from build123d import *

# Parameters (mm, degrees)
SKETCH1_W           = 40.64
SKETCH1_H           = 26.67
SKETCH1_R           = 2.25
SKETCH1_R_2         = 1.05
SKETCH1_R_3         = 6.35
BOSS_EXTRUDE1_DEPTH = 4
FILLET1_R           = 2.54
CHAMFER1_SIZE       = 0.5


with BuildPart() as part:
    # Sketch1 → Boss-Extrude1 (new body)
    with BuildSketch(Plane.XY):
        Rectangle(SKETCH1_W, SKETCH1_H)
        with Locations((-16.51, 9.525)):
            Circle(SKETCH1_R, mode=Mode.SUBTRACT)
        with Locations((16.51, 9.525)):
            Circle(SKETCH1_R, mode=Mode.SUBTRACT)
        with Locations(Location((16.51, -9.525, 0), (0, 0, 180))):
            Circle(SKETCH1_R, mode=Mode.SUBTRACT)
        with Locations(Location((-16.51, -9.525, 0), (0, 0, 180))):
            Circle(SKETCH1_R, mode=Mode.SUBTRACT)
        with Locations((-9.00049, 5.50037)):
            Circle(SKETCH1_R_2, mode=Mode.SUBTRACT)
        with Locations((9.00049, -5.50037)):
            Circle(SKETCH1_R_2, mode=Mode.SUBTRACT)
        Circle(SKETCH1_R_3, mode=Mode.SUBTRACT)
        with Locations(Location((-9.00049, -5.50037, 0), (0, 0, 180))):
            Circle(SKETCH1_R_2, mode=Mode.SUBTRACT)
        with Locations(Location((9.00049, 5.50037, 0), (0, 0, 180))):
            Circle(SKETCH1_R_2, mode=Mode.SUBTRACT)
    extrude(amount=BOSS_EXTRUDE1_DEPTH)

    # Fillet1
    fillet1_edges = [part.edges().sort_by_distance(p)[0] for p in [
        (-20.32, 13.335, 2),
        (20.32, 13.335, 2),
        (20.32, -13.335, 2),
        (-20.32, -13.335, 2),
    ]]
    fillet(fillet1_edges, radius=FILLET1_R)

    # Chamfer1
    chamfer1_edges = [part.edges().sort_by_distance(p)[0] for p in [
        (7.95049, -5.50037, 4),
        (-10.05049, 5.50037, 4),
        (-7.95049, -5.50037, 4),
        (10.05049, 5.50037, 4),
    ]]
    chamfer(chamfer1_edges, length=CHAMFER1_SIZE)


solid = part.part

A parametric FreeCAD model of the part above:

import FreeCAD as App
import Part
import Sketcher
Q = App.Units.Quantity


def edges_at(feature, points):
    """Names of the edges that pass closest to the given points."""
    edges = feature.Shape.Edges
    near = lambda p: min(range(len(edges)), key=lambda i: edges[i].distToShape(Part.Vertex(*p))[0])
    return sorted({f"Edge{near(p) + 1}" for p in points})


def add_polygon(sketch, points):
    """Adds a closed chain of lines whose ends are joined by coincident constraints."""
    first, n = sketch.GeometryCount, len(points)
    for a, b in zip(points, points[1:] + points[:1]):
        sketch.addGeometry(Part.LineSegment(App.Vector(*a, 0), App.Vector(*b, 0)), False)
    for i in range(n):
        sketch.addConstraint(Sketcher.Constraint("Coincident", first + i, 2, first + (i + 1) % n, 1))

doc = App.newDocument("Part")
body = doc.addObject("PartDesign::Body", "Body")

# Sketch on XY plane
sketch1 = body.newObject("Sketcher::SketchObject", "Sketch")
sketch1.AttachmentSupport = (doc.getObject("XY_Plane"), [""])
sketch1.MapMode = "FlatFace"
add_polygon(sketch1, [(-20.3, 13.3), (-20.3, -13.3), (20.3, -13.3), (20.3, 13.3)])  # lines 0-3
sketch1.addGeometry(Part.Circle(App.Vector(-16.5, -9.5, 0), App.Vector(0, 0, 1), 2.2), False)  # 4
sketch1.addGeometry(Part.Circle(App.Vector(-9, -5.5, 0), App.Vector(0, 0, 1), 1.1), False)  # 5
sketch1.addGeometry(Part.Circle(App.Vector(16.5, -9.5, 0), App.Vector(0, 0, 1), 2.2), False)  # 6
sketch1.addGeometry(Part.Circle(App.Vector(9, -5.5, 0), App.Vector(0, 0, 1), 1.1), False)  # 7
sketch1.addGeometry(Part.Circle(App.Vector(-9, 5.5, 0), App.Vector(0, 0, 1), 1.1), False)  # 8
sketch1.addGeometry(Part.Circle(App.Vector(-16.5, 9.5, 0), App.Vector(0, 0, 1), 2.2), False)  # 9
sketch1.addGeometry(Part.Circle(App.Vector(0, 0, 0), App.Vector(0, 0, 1), 6.3), False)  # 10
sketch1.addGeometry(Part.Circle(App.Vector(9, 5.5, 0), App.Vector(0, 0, 1), 1.1), False)  # 11
sketch1.addGeometry(Part.Circle(App.Vector(16.5, 9.5, 0), App.Vector(0, 0, 1), 2.2), False)  # 12
sketch1.addConstraint(Sketcher.Constraint("Vertical", 0))
sketch1.addConstraint(Sketcher.Constraint("Horizontal", 1))
sketch1.addConstraint(Sketcher.Constraint("Vertical", 2))
sketch1.addConstraint(Sketcher.Constraint("Horizontal", 3))
sketch1.addConstraint(Sketcher.Constraint("Coincident", 10, 3, -1, 1))
sketch1.addConstraint(Sketcher.Constraint("Equal", 4, 6))
sketch1.addConstraint(Sketcher.Constraint("Equal", 5, 7))
sketch1.addConstraint(Sketcher.Constraint("Equal", 7, 8))
sketch1.addConstraint(Sketcher.Constraint("Equal", 6, 9))
sketch1.addConstraint(Sketcher.Constraint("Equal", 8, 11))
sketch1.addConstraint(Sketcher.Constraint("Equal", 9, 12))
sketch1.addConstraint(Sketcher.Constraint("Symmetric", 7, 3, 8, 3, -1, 1))
sketch1.addConstraint(Sketcher.Constraint("Symmetric", 6, 3, 9, 3, -1, 1))
sketch1.addConstraint(Sketcher.Constraint("Symmetric", 5, 3, 11, 3, -1, 1))
sketch1.addConstraint(Sketcher.Constraint("Symmetric", 4, 3, 12, 3, -1, 1))
sketch1.addConstraint(Sketcher.Constraint("Symmetric", 0, 2, 2, 2, -1, 1))
sketch1.addConstraint(Sketcher.Constraint("Symmetric", 4, 3, 6, 3, -2))
sketch1.addConstraint(Sketcher.Constraint("Symmetric", 5, 3, 7, 3, -2))
sketch1.addConstraint(Sketcher.Constraint("Diameter", 4, Q("4.5 mm")))
sketch1.addConstraint(Sketcher.Constraint("Diameter", 5, Q("2.1 mm")))
sketch1.addConstraint(Sketcher.Constraint("Diameter", 10, Q("12.7 mm")))
sketch1.addConstraint(Sketcher.Constraint("DistanceX", 1, 1, 1, 2, Q("40.64 mm")))
sketch1.addConstraint(Sketcher.Constraint("DistanceY", 0, 2, 0, 1, Q("26.67 mm")))
sketch1.addConstraint(Sketcher.Constraint("DistanceX", 4, 3, -1, 1, Q("16.51 mm")))
sketch1.addConstraint(Sketcher.Constraint("DistanceY", 4, 3, 9, 3, Q("19.05 mm")))
sketch1.addConstraint(Sketcher.Constraint("DistanceX", 5, 3, -1, 1, Q("9.00049 mm")))
sketch1.addConstraint(Sketcher.Constraint("DistanceY", 5, 3, -1, 1, Q("5.50037 mm")))
pad1 = body.newObject("PartDesign::Pad", "Pad")
pad1.Profile = sketch1
pad1.Length = 4
doc.recompute()

fillet = body.newObject("PartDesign::Fillet", "Fillet")
fillet.Base = (pad1, edges_at(pad1, [
    (-20.32, 13.335, 2),
    (20.32, 13.335, 2),
    (20.32, -13.335, 2),
    (-20.32, -13.335, 2),
]))
fillet.Radius = 2.54
doc.recompute()

chamfer = body.newObject("PartDesign::Chamfer", "Chamfer")
chamfer.Base = (fillet, edges_at(fillet, [
    (7.95, -5.5, 4),
    (-10.05, 5.5, 4),
    (-7.95, -5.5, 4),
    (10.05, 5.5, 4),
]))
chamfer.Size = 0.5

doc.recompute()
